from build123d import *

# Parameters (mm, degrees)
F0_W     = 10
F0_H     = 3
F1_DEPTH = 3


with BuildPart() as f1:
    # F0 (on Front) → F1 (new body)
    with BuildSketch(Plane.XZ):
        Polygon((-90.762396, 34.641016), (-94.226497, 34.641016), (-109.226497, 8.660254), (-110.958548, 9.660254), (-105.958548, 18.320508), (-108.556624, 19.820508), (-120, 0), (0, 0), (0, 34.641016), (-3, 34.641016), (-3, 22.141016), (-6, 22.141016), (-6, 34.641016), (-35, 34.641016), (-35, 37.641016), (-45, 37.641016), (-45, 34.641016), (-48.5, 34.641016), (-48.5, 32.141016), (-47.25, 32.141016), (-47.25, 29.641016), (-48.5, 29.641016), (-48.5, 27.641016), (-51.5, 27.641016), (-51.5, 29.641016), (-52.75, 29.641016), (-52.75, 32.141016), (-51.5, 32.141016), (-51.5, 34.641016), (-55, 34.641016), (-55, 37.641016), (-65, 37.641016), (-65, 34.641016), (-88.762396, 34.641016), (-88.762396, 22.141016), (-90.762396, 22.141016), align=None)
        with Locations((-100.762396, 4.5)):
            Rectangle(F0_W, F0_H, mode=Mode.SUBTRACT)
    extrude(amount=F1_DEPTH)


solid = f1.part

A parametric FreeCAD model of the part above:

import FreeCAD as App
import Part
import Sketcher

V = App.Vector
Q = App.Units.Quantity

doc = App.newDocument("Part")
body = doc.addObject("PartDesign::Body", "Body")

# Sketch on XZ plane
sketch1 = body.newObject("Sketcher::SketchObject", "Sketch")
sketch1.AttachmentSupport = (doc.getObject("XZ_Plane"), [""])
sketch1.MapMode = "FlatFace"
sketch1.addGeometry([
    Part.LineSegment(V(-90.8, 34.6, 0), V(-94.2, 34.6, 0)),  # 0
    Part.LineSegment(V(-94.2, 34.6, 0), V(-109.2, 8.7, 0)),  # 1
    Part.LineSegment(V(-109.2, 8.7, 0), V(-111, 9.7, 0)),  # 2
    Part.LineSegment(V(-111, 9.7, 0), V(-106, 18.3, 0)),  # 3
    Part.LineSegment(V(-106, 18.3, 0), V(-108.6, 19.8, 0)),  # 4
    Part.LineSegment(V(-108.6, 19.8, 0), V(-120, 0, 0)),  # 5
    Part.LineSegment(V(-120, 0, 0), V(0, 0, 0)),  # 6
    Part.LineSegment(V(0, 0, 0), V(0, 34.6, 0)),  # 7
    Part.LineSegment(V(0, 34.6, 0), V(-3, 34.6, 0)),  # 8
    Part.LineSegment(V(-3, 34.6, 0), V(-3, 22.1, 0)),  # 9
    Part.LineSegment(V(-3, 22.1, 0), V(-6, 22.1, 0)),  # 10
    Part.LineSegment(V(-6, 22.1, 0), V(-6, 34.6, 0)),  # 11
    Part.LineSegment(V(-6, 34.6, 0), V(-35, 34.6, 0)),  # 12
    Part.LineSegment(V(-35, 34.6, 0), V(-35, 37.6, 0)),  # 13
    Part.LineSegment(V(-35, 37.6, 0), V(-45, 37.6, 0)),  # 14
    Part.LineSegment(V(-45, 37.6, 0), V(-45, 34.6, 0)),  # 15
    Part.LineSegment(V(-45, 34.6, 0), V(-48.5, 34.6, 0)),  # 16
    Part.LineSegment(V(-48.5, 34.6, 0), V(-48.5, 32.1, 0)),  # 17
    Part.LineSegment(V(-48.5, 32.1, 0), V(-47.2, 32.1, 0)),  # 18
    Part.LineSegment(V(-47.2, 32.1, 0), V(-47.2, 29.6, 0)),  # 19
    Part.LineSegment(V(-47.2, 29.6, 0), V(-48.5, 29.6, 0)),  # 20
    Part.LineSegment(V(-48.5, 29.6, 0), V(-48.5, 27.6, 0)),  # 21
    Part.LineSegment(V(-48.5, 27.6, 0), V(-51.5, 27.6, 0)),  # 22
    Part.LineSegment(V(-51.5, 27.6, 0), V(-51.5, 29.6, 0)),  # 23
    Part.LineSegment(V(-51.5, 29.6, 0), V(-52.8, 29.6, 0)),  # 24
    Part.LineSegment(V(-52.8, 29.6, 0), V(-52.8, 32.1, 0)),  # 25
    Part.LineSegment(V(-52.8, 32.1, 0), V(-51.5, 32.1, 0)),  # 26
    Part.LineSegment(V(-51.5, 32.1, 0), V(-51.5, 34.6, 0)),  # 27
    Part.LineSegment(V(-51.5, 34.6, 0), V(-55, 34.6, 0)),  # 28
    Part.LineSegment(V(-55, 34.6, 0), V(-55, 37.6, 0)),  # 29
    Part.LineSegment(V(-55, 37.6, 0), V(-65, 37.6, 0)),  # 30
    Part.LineSegment(V(-65, 37.6, 0), V(-65, 34.6, 0)),  # 31
    Part.LineSegment(V(-65, 34.6, 0), V(-88.8, 34.6, 0)),  # 32
    Part.LineSegment(V(-88.8, 34.6, 0), V(-88.8, 22.1, 0)),  # 33
    Part.LineSegment(V(-88.8, 22.1, 0), V(-90.8, 22.1, 0)),  # 34
    Part.LineSegment(V(-90.8, 22.1, 0), V(-90.8, 34.6, 0)),  # 35
    Part.LineSegment(V(-95.8, 3, 0), V(-105.8, 3, 0)),  # 36
    Part.LineSegment(V(-105.8, 3, 0), V(-105.8, 6, 0)),  # 37
    Part.LineSegment(V(-105.8, 6, 0), V(-95.8, 6, 0)),  # 38
    Part.LineSegment(V(-95.8, 6, 0), V(-95.8, 3, 0)),  # 39
], False)
sketch1.addConstraint([
    Sketcher.Constraint("Coincident", 0, 2, 1, 1),
    Sketcher.Constraint("Coincident", 1, 2, 2, 1),
    Sketcher.Constraint("Coincident", 2, 2, 3, 1),
    Sketcher.Constraint("Coincident", 3, 2, 4, 1),
    Sketcher.Constraint("Coincident", 4, 2, 5, 1),
    Sketcher.Constraint("Coincident", 5, 2, 6, 1),
    Sketcher.Constraint("Coincident", 6, 2, 7, 1),
    Sketcher.Constraint("Coincident", 7, 2, 8, 1),
    Sketcher.Constraint("Coincident", 8, 2, 9, 1),
    Sketcher.Constraint("Coincident", 9, 2, 10, 1),
    Sketcher.Constraint("Coincident", 10, 2, 11, 1),
    Sketcher.Constraint("Coincident", 11, 2, 12, 1),
    Sketcher.Constraint("Coincident", 12, 2, 13, 1),
    Sketcher.Constraint("Coincident", 13, 2, 14, 1),
    Sketcher.Constraint("Coincident", 14, 2, 15, 1),
    Sketcher.Constraint("Coincident", 15, 2, 16, 1),
    Sketcher.Constraint("Coincident", 16, 2, 17, 1),
    Sketcher.Constraint("Coincident", 17, 2, 18, 1),
    Sketcher.Constraint("Coincident", 18, 2, 19, 1),
    Sketcher.Constraint("Coincident", 19, 2, 20, 1),
    Sketcher.Constraint("Coincident", 20, 2, 21, 1),
    Sketcher.Constraint("Coincident", 21, 2, 22, 1),
    Sketcher.Constraint("Coincident", 22, 2, 23, 1),
    Sketcher.Constraint("Coincident", 23, 2, 24, 1),
    Sketcher.Constraint("Coincident", 24, 2, 25, 1),
    Sketcher.Constraint("Coincident", 25, 2, 26, 1),
    Sketcher.Constraint("Coincident", 26, 2, 27, 1),
    Sketcher.Constraint("Coincident", 27, 2, 28, 1),
    Sketcher.Constraint("Coincident", 28, 2, 29, 1),
    Sketcher.Constraint("Coincident", 29, 2, 30, 1),
    Sketcher.Constraint("Coincident", 30, 2, 31, 1),
    Sketcher.Constraint("Coincident", 31, 2, 32, 1),
    Sketcher.Constraint("Coincident", 32, 2, 33, 1),
    Sketcher.Constraint("Coincident", 33, 2, 34, 1),
    Sketcher.Constraint("Coincident", 34, 2, 35, 1),
    Sketcher.Constraint("Coincident", 35, 2, 0, 1),
    Sketcher.Constraint("Coincident", 36, 2, 37, 1),
    Sketcher.Constraint("Coincident", 37, 2, 38, 1),
    Sketcher.Constraint("Coincident", 38, 2, 39, 1),
    Sketcher.Constraint("Coincident", 39, 2, 36, 1),
    Sketcher.Constraint("Horizontal", 0),
    Sketcher.Constraint("Horizontal", 6),
    Sketcher.Constraint("Vertical", 7),
    Sketcher.Constraint("Horizontal", 8),
    Sketcher.Constraint("Vertical", 9),
    Sketcher.Constraint("Horizontal", 10),
    Sketcher.Constraint("Vertical", 11),
    Sketcher.Constraint("Horizontal", 12),
    Sketcher.Constraint("Vertical", 13),
    Sketcher.Constraint("Horizontal", 14),
    Sketcher.Constraint("Vertical", 15),
    Sketcher.Constraint("Horizontal", 16),
    Sketcher.Constraint("Vertical", 17),
    Sketcher.Constraint("Horizontal", 18),
    Sketcher.Constraint("Vertical", 19),
    Sketcher.Constraint("Horizontal", 20),
    Sketcher.Constraint("Vertical", 21),
    Sketcher.Constraint("Horizontal", 22),
    Sketcher.Constraint("Vertical", 23),
    Sketcher.Constraint("Horizontal", 24),
    Sketcher.Constraint("Vertical", 25),
    Sketcher.Constraint("Horizontal", 26),
    Sketcher.Constraint("Vertical", 27),
    Sketcher.Constraint("Horizontal", 28),
    Sketcher.Constraint("Vertical", 29),
    Sketcher.Constraint("Horizontal", 30),
    Sketcher.Constraint("Vertical", 31),
    Sketcher.Constraint("Horizontal", 32),
    Sketcher.Constraint("Vertical", 33),
    Sketcher.Constraint("Horizontal", 34),
    Sketcher.Constraint("Vertical", 35),
    Sketcher.Constraint("Horizontal", 36),
    Sketcher.Constraint("Vertical", 37),
    Sketcher.Constraint("Horizontal", 38),
    Sketcher.Constraint("Vertical", 39),
    Sketcher.Constraint("Coincident", 6, 2, -1, 1),
    Sketcher.Constraint("Perpendicular", 1, 2),
    Sketcher.Constraint("Perpendicular", 2, 3),
    Sketcher.Constraint("Perpendicular", 3, 4),
    Sketcher.Constraint("Perpendicular", 4, 5),
    Sketcher.Constraint("Horizontal", 0, 2, 7, 2),
    Sketcher.Constraint("Horizontal", 8, 2, 11, 2),
    Sketcher.Constraint("Horizontal", 12, 2, 15, 2),
    Sketcher.Constraint("Horizontal", 20, 2, 23, 2),
    Sketcher.Constraint("Horizontal", 18, 2, 25, 2),
    Sketcher.Constraint("Horizontal", 16, 2, 27, 2),
    Sketcher.Constraint("Horizontal", 14, 2, 29, 2),
    Sketcher.Constraint("Horizontal", 28, 2, 31, 2),
    Sketcher.Constraint("Horizontal", 10, 2, 33, 2),
    Sketcher.Constraint("Vertical", 17, 2, 20, 2),
    Sketcher.Constraint("Vertical", 23, 2, 26, 2),
    Sketcher.Constraint("Equal", 8, 10),
    Sketcher.Constraint("Equal", 10, 22),
    Sketcher.Constraint("Equal", 20, 24),
    Sketcher.Constraint("Equal", 16, 28),
    Sketcher.Constraint("Equal", 14, 30),
    Sketcher.Constraint("Equal", 30, 36),
    Sketcher.Constraint("Equal", 22, 13),
    Sketcher.Constraint("Equal", 17, 19),
    Sketcher.Constraint("Equal", 34, 21),
    Sketcher.Constraint("Equal", 31, 37),
    Sketcher.Constraint("DistanceX", 6, 1, 6, 2, Q("120 mm")),
    Sketcher.Constraint("DistanceX", 8, 2, 8, 1, Q("3 mm")),
    Sketcher.Constraint("DistanceX", 12, 2, 12, 1, Q("29 mm")),
    Sketcher.Constraint("DistanceX", 14, 2, 14, 1, Q("10 mm")),
    Sketcher.Constraint("DistanceX", 34, 2, 34, 1, Q("2 mm")),
    Sketcher.Constraint("Angle", 1, Q("-120 deg")),
    Sketcher.Constraint("Distance", 1, Q("30 mm")),
    Sketcher.Constraint("Distance", 2, Q("2 mm")),
    Sketcher.Constraint("Distance", 3, Q("10 mm")),
    Sketcher.Constraint("Distance", 4, Q("3 mm")),
    Sketcher.Constraint("DistanceX", 16, 2, 16, 1, Q("3.5 mm")),
    Sketcher.Constraint("DistanceY", 9, 2, 9, 1, Q("12.5 mm")),
    Sketcher.Constraint("DistanceY", 17, 2, 17, 1, Q("2.5 mm")),
    Sketcher.Constraint("DistanceY", -1, 1, 36, 2, Q("3 mm")),
    Sketcher.Constraint("DistanceX", 18, 1, 18, 2, Q("1.25 mm")),
    Sketcher.Constraint("DistanceX", 0, 2, 0, 1, Q("3.464101 mm")),
    Sketcher.Constraint("DistanceX", 1, 2, 36, 2, Q("3.464101 mm")),
    Sketcher.Constraint("Distance", 5, Q("22.886751 mm")),
])
pad1 = body.newObject("PartDesign::Pad", "Pad")
pad1.Profile = sketch1
pad1.Length = 3

doc.recompute()
